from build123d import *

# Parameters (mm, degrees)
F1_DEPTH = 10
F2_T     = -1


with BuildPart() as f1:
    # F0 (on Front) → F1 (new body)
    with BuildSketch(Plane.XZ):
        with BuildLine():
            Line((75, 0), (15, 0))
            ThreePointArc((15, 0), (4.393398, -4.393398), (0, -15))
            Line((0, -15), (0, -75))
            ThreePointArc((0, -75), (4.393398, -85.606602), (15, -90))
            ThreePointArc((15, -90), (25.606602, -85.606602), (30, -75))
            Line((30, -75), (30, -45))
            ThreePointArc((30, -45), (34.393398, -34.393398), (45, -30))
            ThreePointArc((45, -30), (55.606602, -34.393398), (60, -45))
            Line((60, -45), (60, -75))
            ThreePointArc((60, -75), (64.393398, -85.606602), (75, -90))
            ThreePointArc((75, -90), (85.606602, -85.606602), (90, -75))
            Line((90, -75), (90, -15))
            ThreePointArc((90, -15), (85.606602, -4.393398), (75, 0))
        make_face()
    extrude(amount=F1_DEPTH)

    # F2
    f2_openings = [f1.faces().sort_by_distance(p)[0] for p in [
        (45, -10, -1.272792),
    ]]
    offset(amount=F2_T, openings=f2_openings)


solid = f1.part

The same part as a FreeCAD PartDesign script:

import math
import FreeCAD as App
import Part
import Sketcher

V = App.Vector


def faces_at(feature, points):
    """Names of the faces that lie closest to the given points."""
    faces = feature.Shape.Faces
    near = lambda p: min(range(len(faces)), key=lambda i: faces[i].distToShape(Part.Vertex(*p))[0])
    return sorted({f"Face{near(p) + 1}" for p in points})

doc = App.newDocument("Part")
body = doc.addObject("PartDesign::Body", "Body")

sketch1 = body.newObject("Sketcher::SketchObject", "Sketch")
sketch1.AttachmentSupport = (doc.getObject("XZ_Plane"), [""])
sketch1.MapMode = "FlatFace"
sketch1.addGeometry([
    Part.LineSegment(V(75, 0, 0), V(15, 0, 0)),
    Part.ArcOfCircle(Part.Circle(V(15, -15, 0), V(0, 0, 1), 15), math.radians(90), math.radians(180)),
    Part.LineSegment(V(0, -15, 0), V(0, -75, 0)),
    Part.ArcOfCircle(Part.Circle(V(15, -75, 0), V(0, 0, 1), 15), math.radians(180), math.radians(270)),
    Part.ArcOfCircle(Part.Circle(V(15, -75, 0), V(0, 0, 1), 15), math.radians(-90), math.radians(0)),
    Part.LineSegment(V(30, -75, 0), V(30, -45, 0)),
    Part.ArcOfCircle(Part.Circle(V(45, -45, 0), V(0, 0, 1), 15), math.radians(90), math.radians(180)),
    Part.ArcOfCircle(Part.Circle(V(45, -45, 0), V(0, 0, 1), 15), math.radians(0), math.radians(90)),
    Part.LineSegment(V(60, -45, 0), V(60, -75, 0)),
    Part.ArcOfCircle(Part.Circle(V(75, -75, 0), V(0, 0, 1), 15), math.radians(180), math.radians(270)),
    Part.ArcOfCircle(Part.Circle(V(75, -75, 0), V(0, 0, 1), 15), math.radians(-90), math.radians(0)),
    Part.LineSegment(V(90, -75, 0), V(90, -15, 0)),
    Part.ArcOfCircle(Part.Circle(V(75, -15, 0), V(0, 0, 1), 15), math.radians(0), math.radians(90)),
], False)
sketch1.addConstraint([
    Sketcher.Constraint("Tangent", 0, 2, 1, 1),
    Sketcher.Constraint("Tangent", 1, 2, 2, 1),
    Sketcher.Constraint("Tangent", 2, 2, 3, 1),
    Sketcher.Constraint("Tangent", 3, 2, 4, 1),
    Sketcher.Constraint("Tangent", 4, 2, 5, 1),
    Sketcher.Constraint("Tangent", 5, 2, 6, 2),
    Sketcher.Constraint("Tangent", 6, 1, 7, 2),
    Sketcher.Constraint("Tangent", 7, 1, 8, 1),
    Sketcher.Constraint("Tangent", 8, 2, 9, 1),
    Sketcher.Constraint("Tangent", 9, 2, 10, 1),
    Sketcher.Constraint("Tangent", 10, 2, 11, 1),
    Sketcher.Constraint("Tangent", 11, 2, 12, 1),
    Sketcher.Constraint("Tangent", 12, 2, 0, 1),
    Sketcher.Constraint("Horizontal", 0),
    Sketcher.Constraint("Vertical", 2),
    Sketcher.Constraint("Vertical", 5),
    Sketcher.Constraint("Vertical", 8),
    Sketcher.Constraint("Vertical", 11),
    Sketcher.Constraint("Equal", 1, 3),
    Sketcher.Constraint("Equal", 3, 4),
    Sketcher.Constraint("Equal", 4, 6),
    Sketcher.Constraint("Equal", 6, 7),
    Sketcher.Constraint("Equal", 7, 9),
    Sketcher.Constraint("Equal", 9, 10),
    Sketcher.Constraint("Equal", 10, 12),
    Sketcher.Constraint("PointOnObject", 0, 2, -1),
    Sketcher.Constraint("PointOnObject", 1, 2, -2),
    Sketcher.Constraint("Horizontal", 4, 3, 9, 3),
    Sketcher.Constraint("Vertical", 0, 2, 3, 2),
    Sketcher.Constraint("Vertical", 7, 3, 6, 1),
    Sketcher.Constraint("Vertical", 12, 3, 9, 2),
    Sketcher.Constraint("Equal", 0, 2),
    Sketcher.Constraint("Radius", 1, 14.999999),
    Sketcher.Constraint("DistanceY", 5, 1, 5, 2, 30.0),
])
pad1 = body.newObject("PartDesign::Pad", "Pad")
pad1.Profile = sketch1
pad1.Length = 10
doc.recompute()

thickness = body.newObject("PartDesign::Thickness", "Thickness")
thickness.Base = (pad1, faces_at(pad1, [(27, -10, -63)]))
thickness.Value = 1
thickness.Reversed = True
thickness.Join = "Arc"

doc.recompute()
